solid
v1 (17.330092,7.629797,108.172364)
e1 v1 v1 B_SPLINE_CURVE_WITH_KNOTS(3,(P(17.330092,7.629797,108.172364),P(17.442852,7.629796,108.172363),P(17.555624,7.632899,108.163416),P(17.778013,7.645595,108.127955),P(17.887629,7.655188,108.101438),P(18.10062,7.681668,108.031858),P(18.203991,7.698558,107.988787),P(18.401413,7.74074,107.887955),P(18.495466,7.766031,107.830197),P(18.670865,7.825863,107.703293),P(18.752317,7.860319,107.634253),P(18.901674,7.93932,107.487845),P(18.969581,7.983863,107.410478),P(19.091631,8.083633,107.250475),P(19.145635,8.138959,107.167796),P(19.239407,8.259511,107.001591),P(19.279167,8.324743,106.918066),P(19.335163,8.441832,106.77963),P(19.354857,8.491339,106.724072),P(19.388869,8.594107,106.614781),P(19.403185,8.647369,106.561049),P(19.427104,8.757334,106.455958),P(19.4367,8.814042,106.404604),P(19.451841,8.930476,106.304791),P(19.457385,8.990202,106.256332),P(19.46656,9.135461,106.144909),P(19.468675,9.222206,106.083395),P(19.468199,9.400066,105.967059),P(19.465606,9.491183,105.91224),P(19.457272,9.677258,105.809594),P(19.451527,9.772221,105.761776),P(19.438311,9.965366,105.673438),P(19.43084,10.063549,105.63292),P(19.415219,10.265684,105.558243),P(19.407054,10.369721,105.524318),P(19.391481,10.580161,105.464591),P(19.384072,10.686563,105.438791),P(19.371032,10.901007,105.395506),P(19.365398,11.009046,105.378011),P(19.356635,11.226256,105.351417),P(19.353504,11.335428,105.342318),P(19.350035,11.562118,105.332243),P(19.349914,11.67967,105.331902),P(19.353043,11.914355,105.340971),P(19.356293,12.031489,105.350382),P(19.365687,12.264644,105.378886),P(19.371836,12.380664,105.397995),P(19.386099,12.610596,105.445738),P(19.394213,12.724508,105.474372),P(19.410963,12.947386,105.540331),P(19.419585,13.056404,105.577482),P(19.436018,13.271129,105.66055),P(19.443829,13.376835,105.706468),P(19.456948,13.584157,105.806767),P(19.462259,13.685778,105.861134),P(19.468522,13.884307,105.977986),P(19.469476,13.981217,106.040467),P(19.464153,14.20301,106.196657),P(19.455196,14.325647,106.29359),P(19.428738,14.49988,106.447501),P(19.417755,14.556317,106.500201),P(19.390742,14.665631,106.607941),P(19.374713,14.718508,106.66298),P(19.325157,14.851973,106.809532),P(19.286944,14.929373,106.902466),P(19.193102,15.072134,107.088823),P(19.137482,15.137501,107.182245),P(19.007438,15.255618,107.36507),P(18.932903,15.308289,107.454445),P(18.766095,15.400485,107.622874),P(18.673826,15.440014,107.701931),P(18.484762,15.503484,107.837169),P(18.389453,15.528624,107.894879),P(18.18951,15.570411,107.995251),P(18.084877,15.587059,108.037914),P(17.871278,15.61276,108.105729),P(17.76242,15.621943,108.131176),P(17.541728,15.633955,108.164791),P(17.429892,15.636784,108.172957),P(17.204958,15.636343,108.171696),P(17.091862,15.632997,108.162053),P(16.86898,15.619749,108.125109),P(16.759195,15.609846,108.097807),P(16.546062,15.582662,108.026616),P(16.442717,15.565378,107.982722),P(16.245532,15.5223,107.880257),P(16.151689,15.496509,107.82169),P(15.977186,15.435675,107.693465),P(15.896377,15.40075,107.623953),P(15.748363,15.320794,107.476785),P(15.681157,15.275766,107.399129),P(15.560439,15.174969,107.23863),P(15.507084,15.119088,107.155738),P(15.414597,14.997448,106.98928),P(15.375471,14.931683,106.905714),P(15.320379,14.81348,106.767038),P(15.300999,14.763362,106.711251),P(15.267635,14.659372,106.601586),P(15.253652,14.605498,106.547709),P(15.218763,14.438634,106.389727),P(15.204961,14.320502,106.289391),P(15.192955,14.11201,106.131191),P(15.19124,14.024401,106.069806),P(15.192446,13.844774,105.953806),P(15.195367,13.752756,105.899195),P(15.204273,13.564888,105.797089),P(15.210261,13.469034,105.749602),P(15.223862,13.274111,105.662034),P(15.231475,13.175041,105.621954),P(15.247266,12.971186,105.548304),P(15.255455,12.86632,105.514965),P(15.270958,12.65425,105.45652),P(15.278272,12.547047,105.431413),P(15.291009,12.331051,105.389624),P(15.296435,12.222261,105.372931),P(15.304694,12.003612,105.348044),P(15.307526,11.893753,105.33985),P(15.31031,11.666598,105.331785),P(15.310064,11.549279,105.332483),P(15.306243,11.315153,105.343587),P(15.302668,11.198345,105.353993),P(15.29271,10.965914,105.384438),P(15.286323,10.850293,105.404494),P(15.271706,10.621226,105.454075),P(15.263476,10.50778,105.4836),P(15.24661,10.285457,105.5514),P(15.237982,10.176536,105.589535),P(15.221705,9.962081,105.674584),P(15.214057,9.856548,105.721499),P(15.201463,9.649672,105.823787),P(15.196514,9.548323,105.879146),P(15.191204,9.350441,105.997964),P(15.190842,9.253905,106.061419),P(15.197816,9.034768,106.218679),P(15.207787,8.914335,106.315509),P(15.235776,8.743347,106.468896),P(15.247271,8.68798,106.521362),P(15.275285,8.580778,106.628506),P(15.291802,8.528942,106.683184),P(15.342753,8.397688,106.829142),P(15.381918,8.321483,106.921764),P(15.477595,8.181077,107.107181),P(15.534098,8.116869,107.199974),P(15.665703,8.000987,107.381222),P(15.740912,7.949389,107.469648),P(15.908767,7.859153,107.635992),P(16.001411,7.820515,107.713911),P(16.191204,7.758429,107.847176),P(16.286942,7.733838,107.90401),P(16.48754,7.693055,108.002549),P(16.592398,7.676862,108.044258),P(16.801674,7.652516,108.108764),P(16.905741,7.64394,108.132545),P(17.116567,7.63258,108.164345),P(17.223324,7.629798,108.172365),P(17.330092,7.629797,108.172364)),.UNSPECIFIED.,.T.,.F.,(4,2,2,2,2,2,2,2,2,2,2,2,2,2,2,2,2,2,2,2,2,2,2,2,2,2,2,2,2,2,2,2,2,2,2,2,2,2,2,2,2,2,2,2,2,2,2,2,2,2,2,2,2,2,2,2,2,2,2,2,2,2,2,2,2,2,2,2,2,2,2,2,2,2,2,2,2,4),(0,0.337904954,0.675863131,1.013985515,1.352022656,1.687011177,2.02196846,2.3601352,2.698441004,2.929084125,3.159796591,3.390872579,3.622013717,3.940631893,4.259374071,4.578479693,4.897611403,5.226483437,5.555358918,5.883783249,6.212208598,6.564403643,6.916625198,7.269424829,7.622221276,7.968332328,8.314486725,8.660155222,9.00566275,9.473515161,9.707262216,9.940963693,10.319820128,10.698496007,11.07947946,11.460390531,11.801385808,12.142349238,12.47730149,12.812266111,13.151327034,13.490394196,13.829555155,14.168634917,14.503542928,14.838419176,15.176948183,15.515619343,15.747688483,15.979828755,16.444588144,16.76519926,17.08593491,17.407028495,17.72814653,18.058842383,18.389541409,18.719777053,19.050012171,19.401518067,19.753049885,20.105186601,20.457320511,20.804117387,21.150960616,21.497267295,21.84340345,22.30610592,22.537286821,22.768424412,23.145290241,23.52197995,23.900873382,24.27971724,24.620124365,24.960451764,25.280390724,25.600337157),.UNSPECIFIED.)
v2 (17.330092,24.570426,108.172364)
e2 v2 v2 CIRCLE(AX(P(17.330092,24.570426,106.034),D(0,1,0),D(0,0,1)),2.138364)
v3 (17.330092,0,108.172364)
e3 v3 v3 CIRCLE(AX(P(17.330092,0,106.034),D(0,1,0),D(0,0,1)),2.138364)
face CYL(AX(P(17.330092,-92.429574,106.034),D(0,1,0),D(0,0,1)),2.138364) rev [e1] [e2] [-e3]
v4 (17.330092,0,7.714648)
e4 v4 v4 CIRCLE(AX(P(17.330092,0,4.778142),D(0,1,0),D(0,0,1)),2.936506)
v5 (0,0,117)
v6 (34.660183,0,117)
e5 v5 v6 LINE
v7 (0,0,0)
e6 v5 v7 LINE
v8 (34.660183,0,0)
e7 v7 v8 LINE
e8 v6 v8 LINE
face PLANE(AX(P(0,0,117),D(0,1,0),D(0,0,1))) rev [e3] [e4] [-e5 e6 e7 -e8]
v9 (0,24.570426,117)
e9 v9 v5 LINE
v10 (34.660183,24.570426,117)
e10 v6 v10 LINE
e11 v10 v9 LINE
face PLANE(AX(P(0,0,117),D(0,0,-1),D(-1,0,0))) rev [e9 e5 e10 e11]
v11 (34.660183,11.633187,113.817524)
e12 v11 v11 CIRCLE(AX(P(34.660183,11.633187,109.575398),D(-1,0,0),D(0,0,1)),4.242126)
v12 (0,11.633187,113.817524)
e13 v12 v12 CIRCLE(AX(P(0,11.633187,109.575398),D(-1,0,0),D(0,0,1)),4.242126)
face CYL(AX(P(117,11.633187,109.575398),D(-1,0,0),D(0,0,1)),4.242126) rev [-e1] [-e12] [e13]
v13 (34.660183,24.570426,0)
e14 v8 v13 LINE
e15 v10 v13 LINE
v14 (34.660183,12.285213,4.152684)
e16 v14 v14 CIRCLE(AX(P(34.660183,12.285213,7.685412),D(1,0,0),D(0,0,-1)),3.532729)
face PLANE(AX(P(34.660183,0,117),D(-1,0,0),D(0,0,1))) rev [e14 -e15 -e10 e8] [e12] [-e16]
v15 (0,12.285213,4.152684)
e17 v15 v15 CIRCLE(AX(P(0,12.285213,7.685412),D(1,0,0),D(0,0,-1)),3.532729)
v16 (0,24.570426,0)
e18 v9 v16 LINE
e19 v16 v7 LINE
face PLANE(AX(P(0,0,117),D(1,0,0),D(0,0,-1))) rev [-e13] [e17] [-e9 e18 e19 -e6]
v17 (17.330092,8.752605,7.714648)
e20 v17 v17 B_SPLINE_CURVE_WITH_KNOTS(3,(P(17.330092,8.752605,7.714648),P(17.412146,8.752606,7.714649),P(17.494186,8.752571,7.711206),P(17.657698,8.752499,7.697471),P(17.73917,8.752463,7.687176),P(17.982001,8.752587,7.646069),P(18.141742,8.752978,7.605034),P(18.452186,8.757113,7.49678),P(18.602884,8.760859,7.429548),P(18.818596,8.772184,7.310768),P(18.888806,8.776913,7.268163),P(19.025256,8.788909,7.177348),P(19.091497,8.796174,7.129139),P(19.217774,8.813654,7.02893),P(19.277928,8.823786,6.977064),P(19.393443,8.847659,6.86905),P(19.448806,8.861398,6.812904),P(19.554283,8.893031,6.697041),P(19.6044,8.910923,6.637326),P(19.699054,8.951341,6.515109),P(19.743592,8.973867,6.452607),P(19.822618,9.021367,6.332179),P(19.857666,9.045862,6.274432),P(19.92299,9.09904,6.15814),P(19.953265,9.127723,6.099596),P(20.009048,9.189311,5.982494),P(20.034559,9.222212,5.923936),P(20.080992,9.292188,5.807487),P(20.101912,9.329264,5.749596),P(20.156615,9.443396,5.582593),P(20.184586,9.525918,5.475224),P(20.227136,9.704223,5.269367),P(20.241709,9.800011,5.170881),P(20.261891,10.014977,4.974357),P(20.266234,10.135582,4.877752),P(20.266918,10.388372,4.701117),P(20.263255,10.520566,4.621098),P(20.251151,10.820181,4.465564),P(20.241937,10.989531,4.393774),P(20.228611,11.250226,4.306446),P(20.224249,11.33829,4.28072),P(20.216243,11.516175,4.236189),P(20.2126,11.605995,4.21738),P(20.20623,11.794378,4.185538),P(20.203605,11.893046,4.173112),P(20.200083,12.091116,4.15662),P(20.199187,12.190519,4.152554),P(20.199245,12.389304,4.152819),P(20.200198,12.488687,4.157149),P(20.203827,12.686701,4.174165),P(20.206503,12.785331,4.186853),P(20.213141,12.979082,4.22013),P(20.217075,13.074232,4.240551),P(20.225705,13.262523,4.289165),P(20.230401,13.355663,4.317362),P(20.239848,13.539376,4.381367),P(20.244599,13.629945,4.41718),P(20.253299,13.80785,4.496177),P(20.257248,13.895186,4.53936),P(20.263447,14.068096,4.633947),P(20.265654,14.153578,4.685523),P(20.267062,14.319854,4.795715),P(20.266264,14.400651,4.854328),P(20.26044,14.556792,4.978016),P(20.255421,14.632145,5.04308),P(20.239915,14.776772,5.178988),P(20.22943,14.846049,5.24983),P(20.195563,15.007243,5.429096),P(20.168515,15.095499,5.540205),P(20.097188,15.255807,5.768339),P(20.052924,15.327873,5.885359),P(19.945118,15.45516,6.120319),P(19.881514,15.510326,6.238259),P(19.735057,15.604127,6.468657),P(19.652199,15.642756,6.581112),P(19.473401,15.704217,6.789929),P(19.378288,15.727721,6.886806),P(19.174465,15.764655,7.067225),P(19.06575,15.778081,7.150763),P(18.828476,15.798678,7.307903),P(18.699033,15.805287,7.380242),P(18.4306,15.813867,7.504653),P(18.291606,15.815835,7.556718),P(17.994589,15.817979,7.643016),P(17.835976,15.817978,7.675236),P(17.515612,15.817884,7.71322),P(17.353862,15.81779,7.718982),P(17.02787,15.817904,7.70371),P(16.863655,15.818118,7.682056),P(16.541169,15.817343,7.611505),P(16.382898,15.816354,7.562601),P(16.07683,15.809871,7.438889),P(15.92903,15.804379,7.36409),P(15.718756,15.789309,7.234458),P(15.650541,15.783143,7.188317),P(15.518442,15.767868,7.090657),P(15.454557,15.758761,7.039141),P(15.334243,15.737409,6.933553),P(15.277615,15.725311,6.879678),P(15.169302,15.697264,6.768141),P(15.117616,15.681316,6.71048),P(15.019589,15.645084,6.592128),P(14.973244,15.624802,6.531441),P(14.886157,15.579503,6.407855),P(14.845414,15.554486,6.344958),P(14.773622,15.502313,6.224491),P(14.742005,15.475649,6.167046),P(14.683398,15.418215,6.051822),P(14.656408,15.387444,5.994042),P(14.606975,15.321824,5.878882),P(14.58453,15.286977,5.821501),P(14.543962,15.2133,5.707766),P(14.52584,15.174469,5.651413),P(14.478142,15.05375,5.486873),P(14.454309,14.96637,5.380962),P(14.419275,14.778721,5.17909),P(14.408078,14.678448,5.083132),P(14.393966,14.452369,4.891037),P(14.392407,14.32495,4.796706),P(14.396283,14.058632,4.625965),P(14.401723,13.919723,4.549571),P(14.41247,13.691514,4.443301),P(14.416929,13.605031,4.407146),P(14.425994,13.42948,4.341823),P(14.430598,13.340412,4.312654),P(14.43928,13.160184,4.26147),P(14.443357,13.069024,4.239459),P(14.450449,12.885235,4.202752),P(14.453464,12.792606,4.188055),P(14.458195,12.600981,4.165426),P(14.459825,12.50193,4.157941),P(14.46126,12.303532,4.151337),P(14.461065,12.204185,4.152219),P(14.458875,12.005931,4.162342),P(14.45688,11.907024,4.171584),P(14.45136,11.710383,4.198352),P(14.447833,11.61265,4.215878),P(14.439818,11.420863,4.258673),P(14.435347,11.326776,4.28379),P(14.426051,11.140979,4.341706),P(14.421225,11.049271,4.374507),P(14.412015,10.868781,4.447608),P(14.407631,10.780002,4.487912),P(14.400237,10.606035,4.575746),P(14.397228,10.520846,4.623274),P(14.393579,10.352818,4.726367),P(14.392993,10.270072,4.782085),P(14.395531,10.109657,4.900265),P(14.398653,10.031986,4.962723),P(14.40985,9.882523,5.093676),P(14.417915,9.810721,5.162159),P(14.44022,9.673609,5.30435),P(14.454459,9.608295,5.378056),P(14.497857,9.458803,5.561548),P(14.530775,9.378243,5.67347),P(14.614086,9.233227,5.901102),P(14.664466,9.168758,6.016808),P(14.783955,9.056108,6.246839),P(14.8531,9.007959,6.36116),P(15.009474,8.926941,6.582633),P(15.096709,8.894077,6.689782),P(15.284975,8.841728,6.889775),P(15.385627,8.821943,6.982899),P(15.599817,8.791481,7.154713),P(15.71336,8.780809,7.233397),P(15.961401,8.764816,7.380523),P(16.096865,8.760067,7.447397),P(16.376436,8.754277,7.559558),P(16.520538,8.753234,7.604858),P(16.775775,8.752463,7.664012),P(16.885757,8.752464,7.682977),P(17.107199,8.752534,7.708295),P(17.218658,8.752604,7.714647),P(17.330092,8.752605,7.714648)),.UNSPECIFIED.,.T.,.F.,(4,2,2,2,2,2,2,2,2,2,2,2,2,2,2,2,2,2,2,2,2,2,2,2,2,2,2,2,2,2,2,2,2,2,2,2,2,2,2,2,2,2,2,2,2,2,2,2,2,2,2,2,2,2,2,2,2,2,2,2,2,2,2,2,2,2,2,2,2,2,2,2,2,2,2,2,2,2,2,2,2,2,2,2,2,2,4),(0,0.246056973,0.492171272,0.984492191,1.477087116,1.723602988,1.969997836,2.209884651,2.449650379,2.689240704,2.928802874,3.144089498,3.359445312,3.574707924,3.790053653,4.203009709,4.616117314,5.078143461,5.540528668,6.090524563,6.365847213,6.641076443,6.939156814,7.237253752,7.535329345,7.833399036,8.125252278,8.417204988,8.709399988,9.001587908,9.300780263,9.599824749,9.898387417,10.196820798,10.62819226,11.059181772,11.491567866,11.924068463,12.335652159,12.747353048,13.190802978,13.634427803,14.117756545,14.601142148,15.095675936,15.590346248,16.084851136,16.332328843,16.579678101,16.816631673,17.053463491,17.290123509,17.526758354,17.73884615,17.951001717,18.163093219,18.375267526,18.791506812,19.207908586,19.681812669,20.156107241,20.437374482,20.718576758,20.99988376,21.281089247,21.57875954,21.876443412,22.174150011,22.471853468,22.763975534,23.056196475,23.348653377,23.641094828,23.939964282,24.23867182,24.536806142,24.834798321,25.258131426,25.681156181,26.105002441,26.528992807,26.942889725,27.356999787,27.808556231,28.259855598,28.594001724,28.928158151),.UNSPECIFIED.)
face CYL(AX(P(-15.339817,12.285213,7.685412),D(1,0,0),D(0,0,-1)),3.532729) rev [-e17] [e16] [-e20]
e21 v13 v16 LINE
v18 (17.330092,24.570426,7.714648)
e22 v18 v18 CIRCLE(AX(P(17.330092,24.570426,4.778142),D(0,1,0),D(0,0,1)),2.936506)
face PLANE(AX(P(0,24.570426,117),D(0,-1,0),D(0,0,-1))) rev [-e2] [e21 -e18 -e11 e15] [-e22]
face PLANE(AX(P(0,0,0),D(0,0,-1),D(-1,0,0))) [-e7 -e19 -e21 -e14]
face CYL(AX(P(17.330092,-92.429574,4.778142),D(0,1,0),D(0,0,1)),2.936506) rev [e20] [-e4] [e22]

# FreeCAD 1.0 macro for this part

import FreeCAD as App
import Part
import Sketcher
Q = App.Units.Quantity

doc = App.newDocument("Part")
body = doc.addObject("PartDesign::Body", "Body")

# Sketch on XY plane
sketch1 = body.newObject("Sketcher::SketchObject", "Sketch")
sketch1.AttachmentSupport = (doc.getObject("XY_Plane"), [""])
sketch1.MapMode = "FlatFace"
sketch1.addGeometry(Part.LineSegment(App.Vector(0, 24.570426, 0), App.Vector(0, 0, 0)), False)
sketch1.addGeometry(Part.LineSegment(App.Vector(0, 0, 0), App.Vector(34.660183, 0, 0)), False)
sketch1.addGeometry(Part.LineSegment(App.Vector(34.660183, 0, 0), App.Vector(34.660183, 24.570426, 0)), False)
sketch1.addGeometry(Part.LineSegment(App.Vector(34.660183, 24.570426, 0), App.Vector(0, 24.570426, 0)), False)
sketch1.addConstraint(Sketcher.Constraint("Coincident", 0, 2, 1, 1))
sketch1.addConstraint(Sketcher.Constraint("Coincident", 1, 2, 2, 1))
sketch1.addConstraint(Sketcher.Constraint("Coincident", 2, 2, 3, 1))
sketch1.addConstraint(Sketcher.Constraint("Coincident", 3, 2, 0, 1))
sketch1.addConstraint(Sketcher.Constraint("Vertical", 0))
sketch1.addConstraint(Sketcher.Constraint("Horizontal", 1))
sketch1.addConstraint(Sketcher.Constraint("Vertical", 2))
sketch1.addConstraint(Sketcher.Constraint("Horizontal", 3))
sketch1.addConstraint(Sketcher.Constraint("Coincident", 0, 2, -1, 1))
sketch1.addConstraint(Sketcher.Constraint("DistanceX", 1, 1, 1, 2, Q("34.660183 mm")))
sketch1.addConstraint(Sketcher.Constraint("DistanceY", 0, 2, 0, 1, Q("24.570426 mm")))
pad1 = body.newObject("PartDesign::Pad", "Pad")
pad1.Profile = sketch1
pad1.Length = 117

# Sketch on XZ plane
sketch2 = body.newObject("Sketcher::SketchObject", "Sketch001")
sketch2.AttachmentSupport = (doc.getObject("XZ_Plane"), [""])
sketch2.MapMode = "FlatFace"
sketch2.AttachmentOffset = App.Placement(App.Vector(0, 0, -24.570426), App.Rotation())
sketch2.addGeometry(Part.Circle(App.Vector(17.330092, 4.778142, 0), App.Vector(0, 0, 1), 2.936506), False)
sketch2.addGeometry(Part.Circle(App.Vector(17.330092, 106.034, 0), App.Vector(0, 0, 1), 2.138364), False)
sketch2.addConstraint(Sketcher.Constraint("Vertical", 0, 3, 1, 3))
sketch2.addConstraint(Sketcher.Constraint("Diameter", 0, Q("5.873012 mm")))
sketch2.addConstraint(Sketcher.Constraint("Diameter", 1, Q("4.276727 mm")))
sketch2.addConstraint(Sketcher.Constraint("DistanceY", -1, 1, 1, 3, Q("106.034 mm")))
sketch2.addConstraint(Sketcher.Constraint("DistanceX", -1, 1, 0, 3, Q("17.330092 mm")))
sketch2.addConstraint(Sketcher.Constraint("DistanceY", -1, 1, 0, 3, Q("4.778142 mm")))
pocket1 = body.newObject("PartDesign::Pocket", "Pocket")
pocket1.Profile = sketch2
pocket1.Length = 117
pocket1.Reversed = True

# Sketch on YZ plane
sketch3 = body.newObject("Sketcher::SketchObject", "Sketch002")
sketch3.AttachmentSupport = (doc.getObject("YZ_Plane"), [""])
sketch3.MapMode = "FlatFace"
sketch3.addGeometry(Part.Circle(App.Vector(11.633187, 109.575398, 0), App.Vector(0, 0, 1), 4.242126), False)
sketch3.addConstraint(Sketcher.Constraint("Diameter", 0, Q("8.484252 mm")))
sketch3.addConstraint(Sketcher.Constraint("DistanceY", -1, 1, 0, 3, Q("109.575398 mm")))
sketch3.addConstraint(Sketcher.Constraint("DistanceX", -1, 1, 0, 3, Q("11.633187 mm")))
pocket2 = body.newObject("PartDesign::Pocket", "Pocket001")
pocket2.Profile = sketch3
pocket2.Length = 117
pocket2.Reversed = True

# Sketch on YZ plane
sketch4 = body.newObject("Sketcher::SketchObject", "Sketch003")
sketch4.AttachmentSupport = (doc.getObject("YZ_Plane"), [""])
sketch4.MapMode = "FlatFace"
sketch4.AttachmentOffset = App.Placement(App.Vector(0, 0, 34.660183), App.Rotation())
sketch4.addGeometry(Part.Circle(App.Vector(12.285213, 7.685412, 0), App.Vector(0, 0, 1), 3.532729), False)
sketch4.addConstraint(Sketcher.Constraint("Diameter", 0, Q("7.065458 mm")))
sketch4.addConstraint(Sketcher.Constraint("DistanceX", -1, 1, 0, 3, Q("12.285213 mm")))
sketch4.addConstraint(Sketcher.Constraint("DistanceY", -1, 1, 0, 3, Q("7.685412 mm")))
pocket3 = body.newObject("PartDesign::Pocket", "Pocket002")
pocket3.Profile = sketch4
pocket3.Length = 50

doc.recompute()
